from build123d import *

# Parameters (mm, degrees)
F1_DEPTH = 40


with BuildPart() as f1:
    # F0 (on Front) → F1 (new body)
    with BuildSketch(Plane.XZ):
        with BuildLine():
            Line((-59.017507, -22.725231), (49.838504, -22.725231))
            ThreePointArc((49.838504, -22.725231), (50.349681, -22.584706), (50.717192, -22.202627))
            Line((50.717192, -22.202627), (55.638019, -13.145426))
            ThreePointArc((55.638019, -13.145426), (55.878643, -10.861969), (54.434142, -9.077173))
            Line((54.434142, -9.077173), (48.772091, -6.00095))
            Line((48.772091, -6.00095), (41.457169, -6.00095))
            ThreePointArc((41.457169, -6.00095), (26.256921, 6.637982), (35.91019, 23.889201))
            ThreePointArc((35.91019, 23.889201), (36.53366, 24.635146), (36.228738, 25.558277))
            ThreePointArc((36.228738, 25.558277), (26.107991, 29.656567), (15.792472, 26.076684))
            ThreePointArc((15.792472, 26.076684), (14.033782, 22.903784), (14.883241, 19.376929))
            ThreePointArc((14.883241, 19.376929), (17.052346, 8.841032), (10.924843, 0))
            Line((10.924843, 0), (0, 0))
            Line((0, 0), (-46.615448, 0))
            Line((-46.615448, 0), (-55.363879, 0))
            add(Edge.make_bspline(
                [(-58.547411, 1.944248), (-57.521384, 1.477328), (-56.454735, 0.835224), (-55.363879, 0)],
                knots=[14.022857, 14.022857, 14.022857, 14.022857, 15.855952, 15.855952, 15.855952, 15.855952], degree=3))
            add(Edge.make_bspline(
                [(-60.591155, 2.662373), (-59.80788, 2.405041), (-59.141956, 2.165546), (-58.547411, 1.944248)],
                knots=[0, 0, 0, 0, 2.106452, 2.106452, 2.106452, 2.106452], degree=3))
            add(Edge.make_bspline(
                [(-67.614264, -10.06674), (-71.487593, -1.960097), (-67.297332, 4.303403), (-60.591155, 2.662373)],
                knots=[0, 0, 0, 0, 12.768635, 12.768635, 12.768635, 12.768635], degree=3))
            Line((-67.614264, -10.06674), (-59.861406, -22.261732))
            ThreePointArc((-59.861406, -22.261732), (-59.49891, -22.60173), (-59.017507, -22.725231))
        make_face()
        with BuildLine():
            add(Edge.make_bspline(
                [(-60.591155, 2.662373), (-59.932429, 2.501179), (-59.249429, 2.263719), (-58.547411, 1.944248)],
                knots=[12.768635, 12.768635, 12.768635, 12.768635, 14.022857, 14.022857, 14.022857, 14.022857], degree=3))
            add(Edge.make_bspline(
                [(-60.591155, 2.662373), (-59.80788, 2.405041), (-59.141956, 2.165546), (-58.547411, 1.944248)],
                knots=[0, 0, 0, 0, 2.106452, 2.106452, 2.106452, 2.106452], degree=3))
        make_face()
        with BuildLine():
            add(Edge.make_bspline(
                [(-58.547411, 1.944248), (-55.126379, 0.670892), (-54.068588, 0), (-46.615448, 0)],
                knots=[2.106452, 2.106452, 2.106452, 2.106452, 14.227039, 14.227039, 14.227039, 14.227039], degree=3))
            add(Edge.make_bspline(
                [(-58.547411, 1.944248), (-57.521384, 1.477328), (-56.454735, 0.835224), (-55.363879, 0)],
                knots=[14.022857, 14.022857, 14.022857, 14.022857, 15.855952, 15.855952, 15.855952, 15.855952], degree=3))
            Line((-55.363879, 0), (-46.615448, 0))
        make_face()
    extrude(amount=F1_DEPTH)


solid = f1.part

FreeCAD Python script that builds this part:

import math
import FreeCAD as App
import Part
import Sketcher
from FreeCAD import Vector

doc = App.newDocument("Part")
body = doc.addObject("PartDesign::Body", "Body")

# Sketch on XZ plane
sketch1 = body.newObject("Sketcher::SketchObject", "Sketch")
sketch1.AttachmentSupport = (doc.getObject("XZ_Plane"), [""])
sketch1.MapMode = "FlatFace"
sketch1.addGeometry(Part.LineSegment(Vector(-59.017507, -22.725231, 0), Vector(49.838504, -22.725231, 0)), False)
sketch1.addGeometry(Part.ArcOfCircle(Part.Circle(Vector(49.838503, -21.725229, 0), Vector(0, 0, 1), 1.000002), math.radians(-89.99993), math.radians(-28.515524)), False)
sketch1.addGeometry(Part.LineSegment(Vector(50.717192, -22.202627, 0), Vector(55.638019, -13.145426, 0)), False)
sketch1.addGeometry(Part.ArcOfCircle(Part.Circle(Vector(53.001953, -11.713238, 0), Vector(0, 0, 1), 3.000001), math.radians(-28.515446), math.radians(61.484513)), False)
sketch1.addGeometry(Part.LineSegment(Vector(54.434142, -9.077173, 0), Vector(48.772091, -6.00095, 0)), False)
sketch1.addGeometry(Part.LineSegment(Vector(48.772091, -6.00095, 0), Vector(41.457169, -6.00095, 0)), False)
sketch1.addGeometry(Part.ArcOfCircle(Part.Circle(Vector(41.457168, 9.458826, 0), Vector(0, 0, 1), 15.459776), math.radians(111.02656), math.radians(270.000002)), False)
sketch1.addGeometry(Part.ArcOfCircle(Part.Circle(Vector(35.55139, 24.822615, 0), Vector(0, 0, 1), 1), math.radians(-68.973468), math.radians(47.363219)), False)
sketch1.addGeometry(Part.ArcOfCircle(Part.Circle(Vector(25.714349, 14.138705, 0), Vector(0, 0, 1), 15.522854), math.radians(47.363174), math.radians(129.730604)), False)
sketch1.addGeometry(Part.ArcOfCircle(Part.Circle(Vector(18.988364, 22.231392, 0), Vector(0, 0, 1), 5), math.radians(129.730591), math.radians(214.812496)), False)
sketch1.addGeometry(Part.ArcOfCircle(Part.Circle(Vector(3.664372, 11.575982, 0), Vector(0, 0, 1), 13.664472), math.radians(-57.90401), math.radians(34.812499)), False)
sketch1.addGeometry(Part.LineSegment(Vector(10.924843, 0, 0), Vector(-46.615448, 0, 0)), False)
sketch1.addGeometry(Part.BSplineCurve([Vector(-58.547411, 1.944248, 0), Vector(-55.126379, 0.670892, 0), Vector(-54.068588, 0, 0), Vector(-46.615448, 0, 0)], [4, 4], [2.106452, 14.227039], False, 3, [1, 1, 1, 1], False), False)
sketch1.addGeometry(Part.BSplineCurve([Vector(-60.591155, 2.662373, 0), Vector(-59.932429, 2.501179, 0), Vector(-59.249429, 2.263719, 0), Vector(-58.547411, 1.944248, 0)], [4, 4], [12.768635, 14.022857], False, 3, [1, 1, 1, 1], False), False)
sketch1.addGeometry(Part.BSplineCurve([Vector(-67.614264, -10.06674, 0), Vector(-71.487593, -1.960097, 0), Vector(-67.297332, 4.303403, 0), Vector(-60.591155, 2.662373, 0)], [4, 4], [0, 12.768635], False, 3, [1, 1, 1, 1], False), False)
sketch1.addGeometry(Part.LineSegment(Vector(-67.614264, -10.06674, 0), Vector(-59.861406, -22.261732, 0)), False)
sketch1.addGeometry(Part.ArcOfCircle(Part.Circle(Vector(-59.017506, -21.725231, 0), Vector(0, 0, 1), 1), math.radians(-147.554238), math.radians(-90.000039)), False)
sketch1.addConstraint(Sketcher.Constraint("Block", 12))
sketch1.addConstraint(Sketcher.Constraint("Block", 13))
sketch1.addConstraint(Sketcher.Constraint("Block", 14))
sketch1.addConstraint(Sketcher.Constraint("Coincident", 0, 2, 1, 1))
sketch1.addConstraint(Sketcher.Constraint("Coincident", 1, 2, 2, 1))
sketch1.addConstraint(Sketcher.Constraint("Coincident", 2, 2, 3, 1))
sketch1.addConstraint(Sketcher.Constraint("Coincident", 3, 2, 4, 1))
sketch1.addConstraint(Sketcher.Constraint("Coincident", 4, 2, 5, 1))
sketch1.addConstraint(Sketcher.Constraint("Coincident", 5, 2, 6, 2))
sketch1.addConstraint(Sketcher.Constraint("Coincident", 6, 1, 7, 1))
sketch1.addConstraint(Sketcher.Constraint("Coincident", 7, 2, 8, 1))
sketch1.addConstraint(Sketcher.Constraint("Coincident", 8, 2, 9, 1))
sketch1.addConstraint(Sketcher.Constraint("Coincident", 9, 2, 10, 2))
sketch1.addConstraint(Sketcher.Constraint("Coincident", 10, 1, 11, 1))
sketch1.addConstraint(Sketcher.Constraint("Coincident", 11, 2, 12, 2))
sketch1.addConstraint(Sketcher.Constraint("Coincident", 14, 1, 15, 1))
sketch1.addConstraint(Sketcher.Constraint("Coincident", 15, 2, 16, 1))
sketch1.addConstraint(Sketcher.Constraint("Coincident", 16, 2, 0, 1))
sketch1.addConstraint(Sketcher.Constraint("Horizontal", 0))
sketch1.addConstraint(Sketcher.Constraint("Horizontal", 5))
sketch1.addConstraint(Sketcher.Constraint("Horizontal", 11))
sketch1.addConstraint(Sketcher.Constraint("Radius", 1, 1.000002))
sketch1.addConstraint(Sketcher.Constraint("Radius", 3, 3.000001))
sketch1.addConstraint(Sketcher.Constraint("Radius", 7, 1.0))
sketch1.addConstraint(Sketcher.Constraint("Radius", 9, 5.0))
sketch1.addConstraint(Sketcher.Constraint("Radius", 16, 1.0))
sketch1.addConstraint(Sketcher.Constraint("Radius", 10, 13.664472))
sketch1.addConstraint(Sketcher.Constraint("Radius", 6, 15.459776))
sketch1.addConstraint(Sketcher.Constraint("Radius", 8, 15.522854))
sketch1.addConstraint(Sketcher.Constraint("DistanceX", 0, 1, 0, 2, 108.856011))
sketch1.addConstraint(Sketcher.Constraint("DistanceX", 11, 2, 11, 1, 57.540291))
sketch1.addConstraint(Sketcher.Constraint("DistanceY", -1, 1, 6, 1, 23.889201))
sketch1.addConstraint(Sketcher.Constraint("DistanceY", 1, 2, 2, 2, 9.057201))
sketch1.addConstraint(Sketcher.Constraint("DistanceX", 4, 2, 1, 2, 1.945101))
sketch1.addConstraint(Sketcher.Constraint("DistanceX", 7, 3, 6, 1, 0.3588))
sketch1.addConstraint(Sketcher.Constraint("DistanceX", 10, 3, 8, 2, 12.1281))
sketch1.addConstraint(Sketcher.Constraint("DistanceX", 15, 2, 16, 3, 0.8439))
sketch1.addConstraint(Sketcher.Constraint("DistanceX", 15, 2, 16, 2, 0.843899))
sketch1.addConstraint(Sketcher.Constraint("Distance", 2, 10.307639))
sketch1.addConstraint(Sketcher.Constraint("DistanceX", 5, 2, 5, 1, 7.314922))
sketch1.addConstraint(Sketcher.Constraint("DistanceY", 1, 3, -1, 1, 21.725229))
sketch1.addConstraint(Sketcher.Constraint("DistanceY", 3, 3, -1, 1, 11.713238))
sketch1.addConstraint(Sketcher.Constraint("DistanceX", -1, 1, 6, 3, 41.457168))
sketch1.addConstraint(Sketcher.Constraint("DistanceX", -1, 1, 7, 3, 35.55139))
sketch1.addConstraint(Sketcher.Constraint("DistanceX", -1, 1, 8, 3, 25.714349))
sketch1.addConstraint(Sketcher.Constraint("DistanceY", -1, 1, 10, 3, 11.575982))
sketch1.addConstraint(Sketcher.Constraint("DistanceX", -1, 1, 2, 2, 55.638019))
sketch1.addConstraint(Sketcher.Constraint("DistanceX", -1, 1, 7, 2, 36.228738))
sketch1.addConstraint(Sketcher.Constraint("DistanceX", -1, 1, 9, 2, 14.883241))
sketch1.addConstraint(Sketcher.Constraint("DistanceX", 9, 3, 3, 3, 34.013588))
sketch1.addConstraint(Sketcher.Constraint("DistanceX", 16, 3, 10, 3, 62.681879))
sketch1.addConstraint(Sketcher.Constraint("DistanceX", 3, 3, 3, 2, 1.432189))
pad1 = body.newObject("PartDesign::Pad", "Pad")
pad1.Profile = sketch1
pad1.Length = 40

doc.recompute()
